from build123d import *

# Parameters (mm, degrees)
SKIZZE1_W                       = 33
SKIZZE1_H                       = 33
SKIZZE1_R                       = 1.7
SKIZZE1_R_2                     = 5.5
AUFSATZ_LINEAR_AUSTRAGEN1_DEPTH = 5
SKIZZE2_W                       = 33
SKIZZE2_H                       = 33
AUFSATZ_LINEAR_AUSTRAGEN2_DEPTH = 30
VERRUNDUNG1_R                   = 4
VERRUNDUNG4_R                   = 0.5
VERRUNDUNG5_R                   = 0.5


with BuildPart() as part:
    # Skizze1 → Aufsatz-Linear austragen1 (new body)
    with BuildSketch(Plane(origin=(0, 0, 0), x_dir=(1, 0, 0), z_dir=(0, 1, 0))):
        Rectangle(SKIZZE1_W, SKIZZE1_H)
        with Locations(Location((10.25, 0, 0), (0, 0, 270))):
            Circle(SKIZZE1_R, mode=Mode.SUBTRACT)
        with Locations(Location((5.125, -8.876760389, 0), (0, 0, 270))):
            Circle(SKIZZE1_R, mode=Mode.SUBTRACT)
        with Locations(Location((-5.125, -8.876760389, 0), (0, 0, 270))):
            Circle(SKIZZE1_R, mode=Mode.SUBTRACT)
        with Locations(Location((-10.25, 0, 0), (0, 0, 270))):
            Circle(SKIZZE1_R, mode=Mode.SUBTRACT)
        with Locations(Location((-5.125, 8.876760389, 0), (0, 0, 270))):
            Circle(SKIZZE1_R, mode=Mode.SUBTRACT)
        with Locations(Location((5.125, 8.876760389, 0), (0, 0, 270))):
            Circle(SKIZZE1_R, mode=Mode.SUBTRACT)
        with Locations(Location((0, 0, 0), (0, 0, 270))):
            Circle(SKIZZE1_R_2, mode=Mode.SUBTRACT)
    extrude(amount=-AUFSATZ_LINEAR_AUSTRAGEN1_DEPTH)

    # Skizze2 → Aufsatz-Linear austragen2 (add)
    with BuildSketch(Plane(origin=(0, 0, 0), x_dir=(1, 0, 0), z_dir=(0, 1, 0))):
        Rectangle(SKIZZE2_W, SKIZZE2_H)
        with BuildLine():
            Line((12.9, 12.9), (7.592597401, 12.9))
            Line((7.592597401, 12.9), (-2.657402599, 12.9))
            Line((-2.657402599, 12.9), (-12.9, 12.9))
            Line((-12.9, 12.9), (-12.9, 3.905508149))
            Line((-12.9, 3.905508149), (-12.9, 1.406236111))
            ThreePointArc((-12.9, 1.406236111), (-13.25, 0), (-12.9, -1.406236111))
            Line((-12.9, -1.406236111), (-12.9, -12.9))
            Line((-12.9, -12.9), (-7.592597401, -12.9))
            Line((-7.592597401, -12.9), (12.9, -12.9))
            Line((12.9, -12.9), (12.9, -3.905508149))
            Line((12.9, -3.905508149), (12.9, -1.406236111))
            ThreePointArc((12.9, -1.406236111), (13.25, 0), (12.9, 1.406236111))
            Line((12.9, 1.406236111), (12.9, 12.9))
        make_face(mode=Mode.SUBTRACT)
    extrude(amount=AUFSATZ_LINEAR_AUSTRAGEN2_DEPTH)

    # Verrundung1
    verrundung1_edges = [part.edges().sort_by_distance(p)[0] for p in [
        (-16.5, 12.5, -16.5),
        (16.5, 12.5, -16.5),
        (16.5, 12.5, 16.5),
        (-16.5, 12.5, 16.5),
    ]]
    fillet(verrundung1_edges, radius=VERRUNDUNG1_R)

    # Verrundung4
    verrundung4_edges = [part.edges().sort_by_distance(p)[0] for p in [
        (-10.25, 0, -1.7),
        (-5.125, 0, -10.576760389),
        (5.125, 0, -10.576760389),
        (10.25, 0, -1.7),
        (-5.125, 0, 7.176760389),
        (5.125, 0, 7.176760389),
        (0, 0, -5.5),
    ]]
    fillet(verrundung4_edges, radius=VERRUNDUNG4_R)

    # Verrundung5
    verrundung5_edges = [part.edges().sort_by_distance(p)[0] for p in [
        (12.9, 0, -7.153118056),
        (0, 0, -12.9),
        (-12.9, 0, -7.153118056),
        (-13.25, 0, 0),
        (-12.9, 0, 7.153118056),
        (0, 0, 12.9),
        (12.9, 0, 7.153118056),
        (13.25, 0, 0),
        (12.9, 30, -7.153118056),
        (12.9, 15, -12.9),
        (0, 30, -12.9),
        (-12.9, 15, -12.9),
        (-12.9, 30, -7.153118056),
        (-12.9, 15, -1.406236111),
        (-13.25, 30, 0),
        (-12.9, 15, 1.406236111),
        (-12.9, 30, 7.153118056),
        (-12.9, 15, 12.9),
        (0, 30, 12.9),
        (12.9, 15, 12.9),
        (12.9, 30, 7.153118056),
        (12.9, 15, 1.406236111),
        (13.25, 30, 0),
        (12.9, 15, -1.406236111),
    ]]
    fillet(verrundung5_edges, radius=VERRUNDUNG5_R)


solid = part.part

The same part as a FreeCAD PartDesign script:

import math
import FreeCAD as App
import Part
import Sketcher

V = App.Vector
Q = App.Units.Quantity


def edges_at(feature, points):
    """Names of the edges that pass closest to the given points."""
    edges = feature.Shape.Edges
    near = lambda p: min(range(len(edges)), key=lambda i: edges[i].distToShape(Part.Vertex(*p))[0])
    return sorted({f"Edge{near(p) + 1}" for p in points})


def add_polygon(sketch, points):
    """Adds a closed chain of lines whose ends are joined by coincident constraints."""
    first, n = sketch.GeometryCount, len(points)
    for a, b in zip(points, points[1:] + points[:1]):
        sketch.addGeometry(Part.LineSegment(App.Vector(*a, 0), App.Vector(*b, 0)), False)
    for i in range(n):
        sketch.addConstraint(Sketcher.Constraint("Coincident", first + i, 2, first + (i + 1) % n, 1))

doc = App.newDocument("Part")
body = doc.addObject("PartDesign::Body", "Body")

# Sketch on XZ plane
sketch1 = body.newObject("Sketcher::SketchObject", "Sketch")
sketch1.AttachmentSupport = (doc.getObject("XZ_Plane"), [""])
sketch1.MapMode = "FlatFace"
add_polygon(sketch1, [(-16.5, -16.5), (-16.5, 16.5), (16.5, 16.5), (16.5, -16.5)])  # lines 0-3
sketch1.addGeometry(Part.Circle(V(-5.1, 8.9, 0), V(0, 0, 1), 1.7), False)  # 4
sketch1.addGeometry(Part.Circle(V(-10.2, 0, 0), V(0, 0, 1), 1.7), False)  # 5
sketch1.addGeometry(Part.Circle(V(5.1, 8.9, 0), V(0, 0, 1), 1.7), False)  # 6
sketch1.addGeometry(Part.Circle(V(0, 0, 0), V(0, 0, 1), 5.5), False)  # 7
sketch1.addGeometry(Part.Circle(V(10.2, 0, 0), V(0, 0, 1), 1.7), False)  # 8
sketch1.addGeometry(Part.Circle(V(-5.1, -8.9, 0), V(0, 0, 1), 1.7), False)  # 9
sketch1.addGeometry(Part.Circle(V(5.1, -8.9, 0), V(0, 0, 1), 1.7), False)  # 10
sketch1.addConstraint([
    Sketcher.Constraint("Vertical", 0),
    Sketcher.Constraint("Horizontal", 1),
    Sketcher.Constraint("Vertical", 2),
    Sketcher.Constraint("Horizontal", 3),
    Sketcher.Constraint("Coincident", 7, 3, -1, 1),
    Sketcher.Constraint("Equal", 4, 5),
    Sketcher.Constraint("Equal", 5, 6),
    Sketcher.Constraint("Equal", 6, 8),
    Sketcher.Constraint("Equal", 8, 9),
    Sketcher.Constraint("Equal", 9, 10),
    Sketcher.Constraint("Symmetric", 5, 3, 8, 3, -1, 1),
    Sketcher.Constraint("Symmetric", 6, 3, 9, 3, -1, 1),
    Sketcher.Constraint("Symmetric", 4, 3, 10, 3, -1, 1),
    Sketcher.Constraint("Symmetric", 0, 2, 2, 2, -1, 1),
    Sketcher.Constraint("Symmetric", 4, 3, 6, 3, -2),
    Sketcher.Constraint("PointOnObject", 5, 3, -1),
    Sketcher.Constraint("Equal", 3, 0),
    Sketcher.Constraint("Diameter", 7, Q("11 mm")),
    Sketcher.Constraint("Diameter", 4, Q("3.4 mm")),
    Sketcher.Constraint("DistanceX", 1, 1, 1, 2, Q("33 mm")),
    Sketcher.Constraint("DistanceX", 5, 3, 8, 3, Q("20.5 mm")),
    Sketcher.Constraint("DistanceX", 4, 3, 6, 3, Q("10.25 mm")),
    Sketcher.Constraint("DistanceY", -1, 1, 4, 3, Q("8.87676 mm")),
])
pad1 = body.newObject("PartDesign::Pad", "Pad")
pad1.Profile = sketch1
pad1.Length = 5

# Sketch on XZ plane
sketch2 = body.newObject("Sketcher::SketchObject", "Sketch001")
sketch2.AttachmentSupport = (doc.getObject("XZ_Plane"), [""])
sketch2.MapMode = "FlatFace"
add_polygon(sketch2, [(-16.5, -16.5), (-16.5, 16.5), (16.5, 16.5), (16.5, -16.5)])  # lines 0-3
sketch2.addGeometry(Part.LineSegment(V(-12.9, -12.9, 0), V(12.9, -12.9, 0)), False)  # 4
sketch2.addGeometry(Part.LineSegment(V(12.9, -12.9, 0), V(12.9, -1.4, 0)), False)  # 5
sketch2.addGeometry(Part.ArcOfCircle(Part.Circle(V(10.2, 0, 0), V(0, 0, 1), 3), math.radians(-28), math.radians(28)), False)  # 6
sketch2.addGeometry(Part.LineSegment(V(12.9, 1.4, 0), V(12.9, 12.9, 0)), False)  # 7
sketch2.addGeometry(Part.LineSegment(V(12.9, 12.9, 0), V(-12.9, 12.9, 0)), False)  # 8
sketch2.addGeometry(Part.LineSegment(V(-12.9, 12.9, 0), V(-12.9, 1.4, 0)), False)  # 9
sketch2.addGeometry(Part.ArcOfCircle(Part.Circle(V(-10.2, 0, 0), V(0, 0, 1), 3), math.radians(152), math.radians(208)), False)  # 10
sketch2.addGeometry(Part.LineSegment(V(-12.9, -1.4, 0), V(-12.9, -12.9, 0)), False)  # 11
sketch2.addConstraint([
    Sketcher.Constraint("Coincident", 4, 2, 5, 1),
    Sketcher.Constraint("Coincident", 5, 2, 6, 1),
    Sketcher.Constraint("Coincident", 6, 2, 7, 1),
    Sketcher.Constraint("Coincident", 7, 2, 8, 1),
    Sketcher.Constraint("Coincident", 8, 2, 9, 1),
    Sketcher.Constraint("Coincident", 9, 2, 10, 1),
    Sketcher.Constraint("Coincident", 10, 2, 11, 1),
    Sketcher.Constraint("Coincident", 11, 2, 4, 1),
    Sketcher.Constraint("Vertical", 0),
    Sketcher.Constraint("Horizontal", 1),
    Sketcher.Constraint("Vertical", 2),
    Sketcher.Constraint("Horizontal", 3),
    Sketcher.Constraint("Horizontal", 4),
    Sketcher.Constraint("Vertical", 5),
    Sketcher.Constraint("Vertical", 7),
    Sketcher.Constraint("Horizontal", 8),
    Sketcher.Constraint("Vertical", 9),
    Sketcher.Constraint("Vertical", 11),
    Sketcher.Constraint("Equal", 6, 10),
    Sketcher.Constraint("Symmetric", 6, 3, 10, 3, -1, 1),
    Sketcher.Constraint("Symmetric", 0, 2, 2, 2, -1, 1),
    Sketcher.Constraint("Symmetric", 4, 2, 8, 2, -1, 1),
    Sketcher.Constraint("Symmetric", 6, 2, 9, 2, -2),
    Sketcher.Constraint("Horizontal", 5, 2, 10, 2),
    Sketcher.Constraint("Equal", 3, 0),
    Sketcher.Constraint("Radius", 6, Q("3 mm")),
    Sketcher.Constraint("DistanceX", 1, 1, 1, 2, Q("33 mm")),
    Sketcher.Constraint("DistanceX", 4, 1, 4, 2, Q("25.8 mm")),
    Sketcher.Constraint("DistanceY", 4, 2, -1, 1, Q("12.9 mm")),
    Sketcher.Constraint("DistanceX", 10, 3, 6, 3, Q("20.5 mm")),
])
pad2 = body.newObject("PartDesign::Pad", "Pad001")
pad2.Profile = sketch2
pad2.Length = 30
pad2.Reversed = True
doc.recompute()

fillet = body.newObject("PartDesign::Fillet", "Fillet")
fillet.Base = (pad2, edges_at(pad2, [
    (-16.5, 12.5, -16.5),
    (16.5, 12.5, -16.5),
    (16.5, 12.5, 16.5),
    (-16.5, 12.5, 16.5),
]))
fillet.Radius = 4
doc.recompute()

fillet2 = body.newObject("PartDesign::Fillet", "Fillet001")
fillet2.Base = (fillet, edges_at(fillet, [
    (-10.25, 0, -1.7),
    (-5.125, 0, -10.577),
    (5.125, 0, -10.577),
    (10.25, 0, -1.7),
    (-5.125, 0, 7.177),
    (5.125, 0, 7.177),
    (0, 0, -5.5),
]))
fillet2.Radius = 0.5
doc.recompute()

fillet3 = body.newObject("PartDesign::Fillet", "Fillet002")
fillet3.Base = (fillet2, edges_at(fillet2, [
    (12.9, 0, -7.153),
    (0, 0, -12.9),
    (-12.9, 0, -7.153),
    (-13.25, 0, 0),
    (-12.9, 0, 7.153),
    (0, 0, 12.9),
    (12.9, 0, 7.153),
    (13.25, 0, 0),
    (12.9, 30, -7.153),
    (12.9, 15, -12.9),
    (0, 30, -12.9),
    (-12.9, 15, -12.9),
    (-12.9, 30, -7.153),
    (-12.9, 15, -1.406),
    (-13.25, 30, 0),
    (-12.9, 15, 1.406),
    (-12.9, 30, 7.153),
    (-12.9, 15, 12.9),
    (0, 30, 12.9),
    (12.9, 15, 12.9),
    (12.9, 30, 7.153),
    (12.9, 15, 1.406),
    (13.25, 30, 0),
    (12.9, 15, -1.406),
]))
fillet3.Radius = 0.5

doc.recompute()
